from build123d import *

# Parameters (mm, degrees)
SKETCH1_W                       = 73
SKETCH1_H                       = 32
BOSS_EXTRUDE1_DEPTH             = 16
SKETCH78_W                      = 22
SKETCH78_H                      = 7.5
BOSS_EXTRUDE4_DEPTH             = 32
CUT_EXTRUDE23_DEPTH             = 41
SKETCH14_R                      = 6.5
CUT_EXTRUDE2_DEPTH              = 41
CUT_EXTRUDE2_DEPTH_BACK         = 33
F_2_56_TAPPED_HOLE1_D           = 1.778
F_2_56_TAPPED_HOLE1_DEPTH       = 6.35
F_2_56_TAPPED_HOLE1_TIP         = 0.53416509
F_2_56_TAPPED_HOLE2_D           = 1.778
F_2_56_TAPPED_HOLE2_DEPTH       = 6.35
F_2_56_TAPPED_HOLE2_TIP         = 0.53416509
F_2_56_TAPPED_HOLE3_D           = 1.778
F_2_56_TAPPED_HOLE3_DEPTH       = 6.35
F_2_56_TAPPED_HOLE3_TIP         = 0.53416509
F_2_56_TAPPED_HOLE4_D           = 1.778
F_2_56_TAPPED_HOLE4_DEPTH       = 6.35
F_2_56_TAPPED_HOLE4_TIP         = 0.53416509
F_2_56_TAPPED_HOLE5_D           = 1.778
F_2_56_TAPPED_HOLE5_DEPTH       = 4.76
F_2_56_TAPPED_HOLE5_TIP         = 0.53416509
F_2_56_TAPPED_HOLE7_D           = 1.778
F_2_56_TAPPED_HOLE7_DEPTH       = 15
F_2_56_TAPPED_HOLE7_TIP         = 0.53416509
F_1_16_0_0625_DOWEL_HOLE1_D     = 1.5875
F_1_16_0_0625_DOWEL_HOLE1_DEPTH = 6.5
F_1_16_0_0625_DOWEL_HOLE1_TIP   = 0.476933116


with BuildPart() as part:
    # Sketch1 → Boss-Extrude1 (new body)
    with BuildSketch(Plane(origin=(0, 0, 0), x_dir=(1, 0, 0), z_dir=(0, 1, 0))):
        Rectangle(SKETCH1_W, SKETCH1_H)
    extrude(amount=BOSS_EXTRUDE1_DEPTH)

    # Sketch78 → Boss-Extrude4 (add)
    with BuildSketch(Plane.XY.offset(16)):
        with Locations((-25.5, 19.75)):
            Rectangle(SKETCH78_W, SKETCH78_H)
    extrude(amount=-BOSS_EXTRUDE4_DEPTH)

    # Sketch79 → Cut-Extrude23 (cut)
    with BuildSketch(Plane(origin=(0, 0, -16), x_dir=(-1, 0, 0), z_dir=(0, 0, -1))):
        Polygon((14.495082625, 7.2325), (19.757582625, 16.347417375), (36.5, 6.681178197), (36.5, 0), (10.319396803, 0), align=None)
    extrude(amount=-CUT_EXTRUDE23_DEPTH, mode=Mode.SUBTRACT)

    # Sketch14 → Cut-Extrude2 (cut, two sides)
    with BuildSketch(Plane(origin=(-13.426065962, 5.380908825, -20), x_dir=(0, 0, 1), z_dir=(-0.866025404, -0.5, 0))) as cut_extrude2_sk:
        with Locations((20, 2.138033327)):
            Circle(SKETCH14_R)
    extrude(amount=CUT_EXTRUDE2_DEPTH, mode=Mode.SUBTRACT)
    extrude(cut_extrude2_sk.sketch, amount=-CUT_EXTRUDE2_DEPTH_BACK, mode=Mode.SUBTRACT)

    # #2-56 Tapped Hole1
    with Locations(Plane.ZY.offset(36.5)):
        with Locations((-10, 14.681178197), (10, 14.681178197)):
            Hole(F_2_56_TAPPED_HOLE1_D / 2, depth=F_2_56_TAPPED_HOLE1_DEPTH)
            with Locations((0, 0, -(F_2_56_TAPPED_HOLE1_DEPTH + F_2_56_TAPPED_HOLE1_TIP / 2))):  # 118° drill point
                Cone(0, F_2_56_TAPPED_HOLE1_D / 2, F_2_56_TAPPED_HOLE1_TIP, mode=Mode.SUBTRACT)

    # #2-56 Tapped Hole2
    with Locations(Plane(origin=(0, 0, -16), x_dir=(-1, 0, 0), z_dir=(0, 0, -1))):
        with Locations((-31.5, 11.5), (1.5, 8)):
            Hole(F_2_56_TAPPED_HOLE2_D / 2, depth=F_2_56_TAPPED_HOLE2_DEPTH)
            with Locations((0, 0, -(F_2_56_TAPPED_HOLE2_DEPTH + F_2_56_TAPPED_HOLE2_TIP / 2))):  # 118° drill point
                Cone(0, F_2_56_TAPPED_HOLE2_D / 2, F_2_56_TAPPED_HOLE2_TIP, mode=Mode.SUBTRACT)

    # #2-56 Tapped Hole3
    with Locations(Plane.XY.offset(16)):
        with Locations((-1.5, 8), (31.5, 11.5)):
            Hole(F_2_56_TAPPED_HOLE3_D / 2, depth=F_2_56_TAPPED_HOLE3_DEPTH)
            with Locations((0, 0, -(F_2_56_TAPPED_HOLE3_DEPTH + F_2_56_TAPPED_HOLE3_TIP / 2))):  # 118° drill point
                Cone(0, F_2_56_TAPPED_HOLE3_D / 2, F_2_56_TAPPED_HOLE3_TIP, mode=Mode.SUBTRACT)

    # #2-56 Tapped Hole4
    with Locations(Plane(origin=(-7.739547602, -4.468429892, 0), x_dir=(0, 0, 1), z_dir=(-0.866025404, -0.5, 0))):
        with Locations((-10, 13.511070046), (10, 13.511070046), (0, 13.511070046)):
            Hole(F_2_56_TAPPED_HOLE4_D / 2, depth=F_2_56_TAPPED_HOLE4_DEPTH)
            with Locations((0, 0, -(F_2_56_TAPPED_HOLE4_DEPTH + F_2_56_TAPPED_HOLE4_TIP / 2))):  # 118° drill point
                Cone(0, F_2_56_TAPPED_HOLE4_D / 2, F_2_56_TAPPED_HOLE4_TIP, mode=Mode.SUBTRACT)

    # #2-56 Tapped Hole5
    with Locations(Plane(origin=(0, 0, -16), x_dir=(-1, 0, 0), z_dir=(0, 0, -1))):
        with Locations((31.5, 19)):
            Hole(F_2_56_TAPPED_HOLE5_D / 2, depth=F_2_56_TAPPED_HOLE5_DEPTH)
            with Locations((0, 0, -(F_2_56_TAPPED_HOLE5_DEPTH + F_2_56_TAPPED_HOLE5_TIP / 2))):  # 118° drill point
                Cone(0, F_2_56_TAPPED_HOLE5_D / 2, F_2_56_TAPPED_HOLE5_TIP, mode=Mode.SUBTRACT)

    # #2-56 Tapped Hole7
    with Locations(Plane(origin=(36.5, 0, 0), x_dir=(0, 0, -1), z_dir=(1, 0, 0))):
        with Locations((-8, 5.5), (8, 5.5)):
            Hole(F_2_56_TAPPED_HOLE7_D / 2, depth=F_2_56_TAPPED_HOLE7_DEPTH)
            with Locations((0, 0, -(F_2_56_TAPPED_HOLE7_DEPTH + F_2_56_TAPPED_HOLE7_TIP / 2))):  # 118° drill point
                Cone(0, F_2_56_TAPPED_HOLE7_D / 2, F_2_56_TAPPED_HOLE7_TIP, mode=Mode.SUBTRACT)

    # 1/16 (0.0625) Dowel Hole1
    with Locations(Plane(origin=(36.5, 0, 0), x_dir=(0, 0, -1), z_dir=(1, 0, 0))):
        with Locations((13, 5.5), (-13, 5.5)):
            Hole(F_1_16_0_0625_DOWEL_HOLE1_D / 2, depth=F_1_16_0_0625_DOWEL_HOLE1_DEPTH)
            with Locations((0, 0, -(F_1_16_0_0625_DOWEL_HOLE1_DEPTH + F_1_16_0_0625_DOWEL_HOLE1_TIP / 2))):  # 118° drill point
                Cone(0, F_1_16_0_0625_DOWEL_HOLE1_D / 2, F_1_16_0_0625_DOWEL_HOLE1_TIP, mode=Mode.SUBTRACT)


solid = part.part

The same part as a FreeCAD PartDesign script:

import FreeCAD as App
import Part
import Sketcher
from FreeCAD import Vector
Q = App.Units.Quantity


def add_polygon(sketch, points):
    """Adds a closed chain of lines whose ends are joined by coincident constraints."""
    first, n = sketch.GeometryCount, len(points)
    for a, b in zip(points, points[1:] + points[:1]):
        sketch.addGeometry(Part.LineSegment(App.Vector(*a, 0), App.Vector(*b, 0)), False)
    for i in range(n):
        sketch.addConstraint(Sketcher.Constraint("Coincident", first + i, 2, first + (i + 1) % n, 1))

doc = App.newDocument("Part")
body = doc.addObject("PartDesign::Body", "Body")

# Sketch on XZ plane
sketch1 = body.newObject("Sketcher::SketchObject", "Sketch")
sketch1.AttachmentSupport = (doc.getObject("XZ_Plane"), [""])
sketch1.MapMode = "FlatFace"
add_polygon(sketch1, [(-36.5, -16), (-36.5, 16), (36.5, 16), (36.5, -16)])  # lines 0-3
sketch1.addConstraint([
    Sketcher.Constraint("Vertical", 0),
    Sketcher.Constraint("Horizontal", 1),
    Sketcher.Constraint("Vertical", 2),
    Sketcher.Constraint("Horizontal", 3),
    Sketcher.Constraint("Symmetric", 0, 2, 2, 2, -1, 1),
    Sketcher.Constraint("DistanceX", 1, 1, 1, 2, 73.0),
    Sketcher.Constraint("DistanceY", 0, 1, 0, 2, 32.0),
])
pad1 = body.newObject("PartDesign::Pad", "Pad")
pad1.Profile = sketch1
pad1.Length = 16
pad1.Reversed = True

# Sketch on XY plane
sketch2 = body.newObject("Sketcher::SketchObject", "Sketch001")
sketch2.AttachmentSupport = (doc.getObject("XY_Plane"), [""])
sketch2.MapMode = "FlatFace"
sketch2.AttachmentOffset = App.Placement(Vector(0, 0, 16), App.Rotation())
add_polygon(sketch2, [(-36.5, 23.5), (-36.5, 16), (-14.5, 16), (-14.5, 23.5)])  # lines 0-3
sketch2.addConstraint([
    Sketcher.Constraint("Vertical", 0),
    Sketcher.Constraint("Horizontal", 1),
    Sketcher.Constraint("Vertical", 2),
    Sketcher.Constraint("Horizontal", 3),
    Sketcher.Constraint("DistanceX", 1, 1, 1, 2, 22.0),
    Sketcher.Constraint("DistanceY", 0, 2, 0, 1, 7.5),
    Sketcher.Constraint("DistanceY", -1, 1, 0, 2, 16.0),
    Sketcher.Constraint("DistanceX", 0, 2, -1, 1, 36.5),
])
pad2 = body.newObject("PartDesign::Pad", "Pad001")
pad2.Profile = sketch2
pad2.Length = 32
pad2.Reversed = True

# Sketch on XY plane
sketch3 = body.newObject("Sketcher::SketchObject", "Sketch002")
sketch3.AttachmentSupport = (doc.getObject("XY_Plane"), [""])
sketch3.MapMode = "FlatFace"
sketch3.AttachmentOffset = App.Placement(Vector(0, 0, -16), App.Rotation())
add_polygon(sketch3, [(-19.757583, 16.347417), (-14.495083, 7.2325), (-10.319397, 0), (-36.5, 0), (-36.5, 6.681178)])  # lines 0-4
sketch3.addConstraint([
    Sketcher.Constraint("Horizontal", 2),
    Sketcher.Constraint("Vertical", 3),
    Sketcher.Constraint("PointOnObject", 1, 2, -1),
    Sketcher.Constraint("Parallel", 0, 1),
    Sketcher.Constraint("Perpendicular", 1, 4),
    Sketcher.Constraint("Angle", 0, Q("-60 deg")),
    Sketcher.Constraint("DistanceX", 2, 2, -1, 1, 36.5),
    Sketcher.Constraint("Distance", 0, 10.525),
    Sketcher.Constraint("DistanceY", 3, 1, 3, 2, 6.681178),
    Sketcher.Constraint("DistanceY", -1, 1, 0, 2, 7.2325),
])
pocket1 = body.newObject("PartDesign::Pocket", "Pocket")
pocket1.Profile = sketch3
pocket1.Length = 41
pocket1.Reversed = True

# Sketch on an angled plane
sketch4 = body.newObject("Sketcher::SketchObject", "Sketch003")
sketch4.Placement = App.Placement(Vector(-13.426066, 5.380909, -20), App.Rotation(Vector(0, 0, 1), Vector(-0.5, 0.866025404, 0), Vector(-0.866025404, -0.5, 0), "ZXY"))
sketch4.addGeometry(Part.Circle(Vector(20, 2.138033, 0), Vector(0, 0, 1), 6.5), False)
sketch4.addConstraint([
    Sketcher.Constraint("Diameter", 0, 13.0),
    Sketcher.Constraint("DistanceX", -1, 1, 0, 3, 20.0),
    Sketcher.Constraint("DistanceY", -1, 1, 0, 3, 2.138033),
])
pocket2 = body.newObject("PartDesign::Pocket", "Pocket001")
pocket2.Profile = sketch4
pocket2.Type = "ThroughAll"
pocket2.Midplane = True

# Sketch on YZ plane
sketch5 = body.newObject("Sketcher::SketchObject", "Sketch004")
sketch5.AttachmentSupport = (doc.getObject("YZ_Plane"), [""])
sketch5.MapMode = "FlatFace"
sketch5.AttachmentOffset = App.Placement(Vector(0, 0, -36.5), App.Rotation())
sketch5.addGeometry([
    Part.Circle(Vector(14.681178, -10, 0), Vector(0, 0, 1), 0.889),
    Part.Circle(Vector(14.681178, 10, 0), Vector(0, 0, 1), 0.889),
], False)
sketch5.addConstraint([
    Sketcher.Constraint("Equal", 0, 1),
    Sketcher.Constraint("Symmetric", 0, 3, 1, 3, -1),
    Sketcher.Constraint("Diameter", 0, 1.778),
    Sketcher.Constraint("DistanceY", 0, 3, -1, 1, 10.0),
    Sketcher.Constraint("DistanceX", -1, 1, 0, 3, 14.681178),
])
doc.recompute()
hole = body.newObject("PartDesign::Hole", "Hole")
hole.Profile = sketch5
hole.ThreadType = "None"
hole.Diameter = 1.778
hole.DepthType = "Dimension"
hole.Depth = 6.35
hole.DrillPoint = "Angled"
hole.DrillPointAngle = 118
hole.Reversed = True

# Sketch on XY plane
sketch6 = body.newObject("Sketcher::SketchObject", "Sketch005")
sketch6.AttachmentSupport = (doc.getObject("XY_Plane"), [""])
sketch6.MapMode = "FlatFace"
sketch6.AttachmentOffset = App.Placement(Vector(0, 0, -16), App.Rotation())
sketch6.addGeometry([
    Part.Circle(Vector(31.5, 11.5, 0), Vector(0, 0, 1), 0.889),
    Part.Circle(Vector(-1.5, 8, 0), Vector(0, 0, 1), 0.889),
], False)
sketch6.addConstraint([
    Sketcher.Constraint("Equal", 0, 1),
    Sketcher.Constraint("Diameter", 0, 1.778),
    Sketcher.Constraint("DistanceY", -1, 1, 1, 3, 8.0),
    Sketcher.Constraint("DistanceX", 1, 3, 0, 3, 33.0),
    Sketcher.Constraint("DistanceX", -1, 1, 0, 3, 31.5),
    Sketcher.Constraint("DistanceY", -1, 1, 0, 3, 11.5),
])
doc.recompute()
hole2 = body.newObject("PartDesign::Hole", "Hole001")
hole2.Profile = sketch6
hole2.ThreadType = "None"
hole2.Diameter = 1.778
hole2.DepthType = "Dimension"
hole2.Depth = 6.35
hole2.DrillPoint = "Angled"
hole2.DrillPointAngle = 118
hole2.Reversed = True

# Sketch on XY plane
sketch7 = body.newObject("Sketcher::SketchObject", "Sketch006")
sketch7.AttachmentSupport = (doc.getObject("XY_Plane"), [""])
sketch7.MapMode = "FlatFace"
sketch7.AttachmentOffset = App.Placement(Vector(0, 0, 16), App.Rotation())
sketch7.addGeometry([
    Part.Circle(Vector(-1.5, 8, 0), Vector(0, 0, 1), 0.889),
    Part.Circle(Vector(31.5, 11.5, 0), Vector(0, 0, 1), 0.889),
], False)
sketch7.addConstraint([
    Sketcher.Constraint("Equal", 0, 1),
    Sketcher.Constraint("Diameter", 0, 1.778),
    Sketcher.Constraint("DistanceY", -1, 1, 0, 3, 8.0),
    Sketcher.Constraint("DistanceX", 0, 3, 1, 3, 33.0),
    Sketcher.Constraint("DistanceX", 0, 3, -1, 1, 1.5),
    Sketcher.Constraint("DistanceY", -1, 1, 1, 3, 11.5),
])
doc.recompute()
hole3 = body.newObject("PartDesign::Hole", "Hole002")
hole3.Profile = sketch7
hole3.ThreadType = "None"
hole3.Diameter = 1.778
hole3.DepthType = "Dimension"
hole3.Depth = 6.35
hole3.DrillPoint = "Angled"
hole3.DrillPointAngle = 118

# Sketch on an angled plane
sketch8 = body.newObject("Sketcher::SketchObject", "Sketch007")
sketch8.Placement = App.Placement(Vector(-7.739548, -4.46843, 0), App.Rotation(Vector(0, 0, 1), Vector(-0.5, 0.866025404, 0), Vector(-0.866025404, -0.5, 0), "ZXY"))
sketch8.addGeometry([
    Part.Circle(Vector(-10, 13.51107, 0), Vector(0, 0, 1), 0.889),
    Part.Circle(Vector(10, 13.51107, 0), Vector(0, 0, 1), 0.889),
    Part.Circle(Vector(0, 13.51107, 0), Vector(0, 0, 1), 0.889),
], False)
sketch8.addConstraint([
    Sketcher.Constraint("Equal", 0, 1),
    Sketcher.Constraint("Equal", 1, 2),
    Sketcher.Constraint("Symmetric", 0, 3, 1, 3, -2),
    Sketcher.Constraint("PointOnObject", 2, 3, -2),
    Sketcher.Constraint("Horizontal", 1, 3, 2, 3),
    Sketcher.Constraint("Diameter", 0, 1.778),
    Sketcher.Constraint("DistanceX", 0, 3, -1, 1, 10.0),
    Sketcher.Constraint("DistanceY", -1, 1, 0, 3, 13.51107),
])
doc.recompute()
hole4 = body.newObject("PartDesign::Hole", "Hole003")
hole4.Profile = sketch8
hole4.ThreadType = "None"
hole4.Diameter = 1.778
hole4.DepthType = "Dimension"
hole4.Depth = 6.35
hole4.DrillPoint = "Angled"
hole4.DrillPointAngle = 118

# Sketch on XY plane
sketch9 = body.newObject("Sketcher::SketchObject", "Sketch008")
sketch9.AttachmentSupport = (doc.getObject("XY_Plane"), [""])
sketch9.MapMode = "FlatFace"
sketch9.AttachmentOffset = App.Placement(Vector(0, 0, -16), App.Rotation())
sketch9.addGeometry(Part.Circle(Vector(-31.5, 19, 0), Vector(0, 0, 1), 0.889), False)
sketch9.addConstraint([
    Sketcher.Constraint("Diameter", 0, 1.778),
    Sketcher.Constraint("DistanceY", -1, 1, 0, 3, 19.0),
    Sketcher.Constraint("DistanceX", 0, 3, -1, 1, 31.5),
])
doc.recompute()
hole5 = body.newObject("PartDesign::Hole", "Hole004")
hole5.Profile = sketch9
hole5.ThreadType = "None"
hole5.Diameter = 1.778
hole5.DepthType = "Dimension"
hole5.Depth = 4.76
hole5.DrillPoint = "Angled"
hole5.DrillPointAngle = 118
hole5.Reversed = True

# Sketch on YZ plane
sketch10 = body.newObject("Sketcher::SketchObject", "Sketch009")
sketch10.AttachmentSupport = (doc.getObject("YZ_Plane"), [""])
sketch10.MapMode = "FlatFace"
sketch10.AttachmentOffset = App.Placement(Vector(0, 0, 36.5), App.Rotation())
sketch10.addGeometry([
    Part.Circle(Vector(5.5, 8, 0), Vector(0, 0, 1), 0.889),
    Part.Circle(Vector(5.5, -8, 0), Vector(0, 0, 1), 0.889),
], False)
sketch10.addConstraint([
    Sketcher.Constraint("Equal", 0, 1),
    Sketcher.Constraint("Symmetric", 0, 3, 1, 3, -1),
    Sketcher.Constraint("Diameter", 0, 1.778),
    Sketcher.Constraint("DistanceY", -1, 1, 0, 3, 8.0),
    Sketcher.Constraint("DistanceX", -1, 1, 0, 3, 5.5),
])
doc.recompute()
hole6 = body.newObject("PartDesign::Hole", "Hole005")
hole6.Profile = sketch10
hole6.ThreadType = "None"
hole6.Diameter = 1.778
hole6.DepthType = "Dimension"
hole6.Depth = 15
hole6.DrillPoint = "Angled"
hole6.DrillPointAngle = 118

# Sketch on YZ plane
sketch11 = body.newObject("Sketcher::SketchObject", "Sketch010")
sketch11.AttachmentSupport = (doc.getObject("YZ_Plane"), [""])
sketch11.MapMode = "FlatFace"
sketch11.AttachmentOffset = App.Placement(Vector(0, 0, 36.5), App.Rotation())
sketch11.addGeometry([
    Part.Circle(Vector(5.5, -13, 0), Vector(0, 0, 1), 0.79375),
    Part.Circle(Vector(5.5, 13, 0), Vector(0, 0, 1), 0.79375),
], False)
sketch11.addConstraint([
    Sketcher.Constraint("Equal", 0, 1),
    Sketcher.Constraint("Symmetric", 0, 3, 1, 3, -1),
    Sketcher.Constraint("DistanceY", 0, 3, -1, 1, 13.0),
    Sketcher.Constraint("Diameter", 0, 1.5875),
    Sketcher.Constraint("DistanceX", -1, 1, 0, 3, 5.5),
])
doc.recompute()
hole7 = body.newObject("PartDesign::Hole", "Hole006")
hole7.Profile = sketch11
hole7.ThreadType = "None"
hole7.Diameter = 1.5875
hole7.DepthType = "Dimension"
hole7.Depth = 6.5
hole7.DrillPoint = "Angled"
hole7.DrillPointAngle = 118

doc.recompute()
